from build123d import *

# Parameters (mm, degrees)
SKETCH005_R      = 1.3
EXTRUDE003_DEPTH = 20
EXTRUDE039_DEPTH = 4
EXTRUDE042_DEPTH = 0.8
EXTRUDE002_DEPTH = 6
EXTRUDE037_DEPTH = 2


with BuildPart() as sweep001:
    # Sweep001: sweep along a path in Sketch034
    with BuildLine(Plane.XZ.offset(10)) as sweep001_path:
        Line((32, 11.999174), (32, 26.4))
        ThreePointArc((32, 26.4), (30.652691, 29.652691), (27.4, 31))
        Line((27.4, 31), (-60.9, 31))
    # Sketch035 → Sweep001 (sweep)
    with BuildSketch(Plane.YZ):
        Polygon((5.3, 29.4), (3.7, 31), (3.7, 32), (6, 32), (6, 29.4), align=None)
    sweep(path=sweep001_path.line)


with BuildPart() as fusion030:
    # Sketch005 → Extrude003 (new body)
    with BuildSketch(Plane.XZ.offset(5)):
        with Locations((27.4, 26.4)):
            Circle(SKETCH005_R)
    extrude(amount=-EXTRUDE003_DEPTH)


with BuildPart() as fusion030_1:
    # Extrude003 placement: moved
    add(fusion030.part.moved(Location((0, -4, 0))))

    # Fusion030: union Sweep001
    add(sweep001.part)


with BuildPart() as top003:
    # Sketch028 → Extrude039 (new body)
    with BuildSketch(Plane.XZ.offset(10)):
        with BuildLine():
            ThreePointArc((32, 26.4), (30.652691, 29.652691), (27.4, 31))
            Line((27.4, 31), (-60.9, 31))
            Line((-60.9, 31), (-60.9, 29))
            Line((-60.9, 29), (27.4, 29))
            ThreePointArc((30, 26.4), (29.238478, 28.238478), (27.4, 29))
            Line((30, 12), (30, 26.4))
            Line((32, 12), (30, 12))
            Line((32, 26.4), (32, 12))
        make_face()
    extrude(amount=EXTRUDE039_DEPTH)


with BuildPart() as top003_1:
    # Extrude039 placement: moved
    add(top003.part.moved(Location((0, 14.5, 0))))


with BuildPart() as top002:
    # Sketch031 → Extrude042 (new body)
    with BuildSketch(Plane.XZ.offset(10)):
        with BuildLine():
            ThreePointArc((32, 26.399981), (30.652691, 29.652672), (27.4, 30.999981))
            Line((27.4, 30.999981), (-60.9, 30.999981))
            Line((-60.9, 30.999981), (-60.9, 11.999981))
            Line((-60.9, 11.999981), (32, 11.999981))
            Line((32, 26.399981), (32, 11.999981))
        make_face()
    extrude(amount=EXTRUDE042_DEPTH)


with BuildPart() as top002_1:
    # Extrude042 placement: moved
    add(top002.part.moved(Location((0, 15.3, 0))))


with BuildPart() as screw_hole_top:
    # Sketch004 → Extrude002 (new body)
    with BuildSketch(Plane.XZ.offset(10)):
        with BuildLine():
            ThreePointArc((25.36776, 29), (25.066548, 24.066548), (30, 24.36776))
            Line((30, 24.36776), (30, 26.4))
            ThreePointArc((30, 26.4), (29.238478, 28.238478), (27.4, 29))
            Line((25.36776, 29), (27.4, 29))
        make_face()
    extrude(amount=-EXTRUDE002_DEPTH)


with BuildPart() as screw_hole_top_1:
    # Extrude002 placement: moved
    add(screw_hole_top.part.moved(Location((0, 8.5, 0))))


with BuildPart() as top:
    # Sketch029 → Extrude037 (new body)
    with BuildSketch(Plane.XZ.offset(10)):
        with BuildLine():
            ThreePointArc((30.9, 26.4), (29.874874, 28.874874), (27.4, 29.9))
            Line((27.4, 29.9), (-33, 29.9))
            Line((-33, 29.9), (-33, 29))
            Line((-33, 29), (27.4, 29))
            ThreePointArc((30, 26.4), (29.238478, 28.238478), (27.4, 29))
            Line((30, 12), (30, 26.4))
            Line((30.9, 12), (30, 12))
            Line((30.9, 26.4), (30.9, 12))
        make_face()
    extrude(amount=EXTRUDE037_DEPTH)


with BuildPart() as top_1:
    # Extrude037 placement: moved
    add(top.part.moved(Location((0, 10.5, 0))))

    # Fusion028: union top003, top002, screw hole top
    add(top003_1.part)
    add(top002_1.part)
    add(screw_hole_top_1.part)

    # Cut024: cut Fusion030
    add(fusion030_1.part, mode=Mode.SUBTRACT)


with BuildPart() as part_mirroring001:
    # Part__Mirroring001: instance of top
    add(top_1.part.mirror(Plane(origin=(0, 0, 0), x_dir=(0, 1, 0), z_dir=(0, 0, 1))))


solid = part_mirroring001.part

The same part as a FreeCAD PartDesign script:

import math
import FreeCAD as App
import Part
import Sketcher
Q = App.Units.Quantity


def add_polygon(sketch, points):
    """Adds a closed chain of lines whose ends are joined by coincident constraints."""
    first, n = sketch.GeometryCount, len(points)
    for a, b in zip(points, points[1:] + points[:1]):
        sketch.addGeometry(Part.LineSegment(App.Vector(*a, 0), App.Vector(*b, 0)), False)
    for i in range(n):
        sketch.addConstraint(Sketcher.Constraint("Coincident", first + i, 2, first + (i + 1) % n, 1))

doc = App.newDocument("Part")
params = doc.addObject("Spreadsheet::Sheet", "Params")
for row, (alias, value) in enumerate([
    ("sketch1_height", "1 mm"),
    ("sketch1_width", "0.7 mm"),
    ("sketch1_width2", "2.3 mm"),
    ("sketch2_radius", "4.600001 mm"),
    ("sketch2_width", "88.3 mm"),
    ("sketch3_diameter", "2.6 mm"),
    ("pad1_length", "20 mm"),
    ("sketch4_radius", "4.600001 mm"),
    ("sketch4_radius2", "2.599999 mm"),
    ("sketch4_width", "88.3 mm"),
    ("sketch4_height", "14.4 mm"),
    ("pad2_length", "4 mm"),
    ("sketch5_radius", "4.600001 mm"),
    ("sketch5_height", "19 mm"),
    ("sketch5_width", "88.3 mm"),
    ("pad3_length", "0.8 mm"),
    ("sketch6_radius", "3.3 mm"),
    ("sketch6_radius2", "2.599999 mm"),
    ("pad4_length", "6 mm"),
    ("sketch7_radius", "3.499999 mm"),
    ("sketch7_radius2", "2.599999 mm"),
    ("sketch7_width", "60.4 mm"),
    ("sketch7_height", "14.4 mm"),
    ("pad5_length", "2 mm"),
], start=1):
    params.set(f"A{row}", alias)
    params.set(f"B{row}", "=" + value)
    params.setAlias(f"B{row}", alias)

body = doc.addObject("PartDesign::Body", "Body")

# Sketch on YZ plane
sketch1 = body.newObject("Sketcher::SketchObject", "Sketch")
sketch1.AttachmentSupport = (doc.getObject("YZ_Plane"), [""])
sketch1.MapMode = "FlatFace"
add_polygon(sketch1, [(3.7, 31), (5.3, 29.4), (6, 29.4), (6, 32), (3.7, 32)])  # lines 0-4
sketch1.addConstraint([
    Sketcher.Constraint("Horizontal", 1),
    Sketcher.Constraint("Vertical", 2),
    Sketcher.Constraint("Horizontal", 3),
    Sketcher.Constraint("Vertical", 4),
    Sketcher.Constraint("DistanceY", 4, 2, 4, 1, Q("1 mm")),
    Sketcher.Constraint("Angle", 0, Q("-45 deg")),
    Sketcher.Constraint("DistanceX", 1, 1, 1, 2, Q("0.7 mm")),
    Sketcher.Constraint("DistanceX", 3, 2, 3, 1, Q("2.3 mm")),
    Sketcher.Constraint("DistanceX", -1, 1, 1, 2, Q("6 mm")),
    Sketcher.Constraint("DistanceY", -1, 1, 2, 2, Q("32 mm")),
])
sketch1.setExpression("Constraints[9]", "Params.sketch1_height")
sketch1.setExpression("Constraints[11]", "Params.sketch1_width")
sketch1.setExpression("Constraints[12]", "Params.sketch1_width2")

# Sketch on XZ plane
sketch2 = body.newObject("Sketcher::SketchObject", "Sketch001")
sketch2.AttachmentSupport = (doc.getObject("XZ_Plane"), [""])
sketch2.MapMode = "FlatFace"
sketch2.AttachmentOffset = App.Placement(App.Vector(0, 0, 10), App.Rotation())
sketch2.addGeometry([
    Part.LineSegment(App.Vector(32, 12, 0), App.Vector(32, 26.4, 0)),
    Part.ArcOfCircle(Part.Circle(App.Vector(27.4, 26.4, 0), App.Vector(0, 0, 1), 4.6), math.radians(0), math.radians(90)),
    Part.LineSegment(App.Vector(27.4, 31, 0), App.Vector(-60.9, 31, 0)),
], False)
sketch2.addConstraint([
    Sketcher.Constraint("Tangent", 0, 2, 1, 1),
    Sketcher.Constraint("Tangent", 1, 2, 2, 1),
    Sketcher.Constraint("Vertical", 0),
    Sketcher.Constraint("Horizontal", 2),
    Sketcher.Constraint("Radius", 1, Q("4.600001 mm")),
    Sketcher.Constraint("DistanceX", 2, 2, 2, 1, Q("88.3 mm")),
    Sketcher.Constraint("DistanceX", -1, 1, 0, 1, Q("32 mm")),
    Sketcher.Constraint("DistanceY", -1, 1, 1, 2, Q("31 mm")),
    Sketcher.Constraint("DistanceY", 0, 1, 0, 2, Q("14.400826 mm")),
])
sketch2.setExpression("Constraints[4]", "Params.sketch2_radius")
sketch2.setExpression("Constraints[5]", "Params.sketch2_width")
doc.recompute()

additivepipe = body.newObject("PartDesign::AdditivePipe", "AdditivePipe")
additivepipe.Profile = sketch1
additivepipe.Spine = (sketch2, ["Edge1", "Edge2", "Edge3"])
body2 = doc.addObject("PartDesign::Body", "Body001")

# Sketch on XZ plane
sketch3 = body2.newObject("Sketcher::SketchObject", "Sketch002")
sketch3.AttachmentSupport = (doc.getObject("XZ_Plane001"), [""])
sketch3.MapMode = "FlatFace"
sketch3.AttachmentOffset = App.Placement(App.Vector(0, 0, 5), App.Rotation())
sketch3.addGeometry(Part.Circle(App.Vector(27.4, 26.4, 0), App.Vector(0, 0, 1), 1.3), False)
sketch3.addConstraint([
    Sketcher.Constraint("Diameter", 0, Q("2.6 mm")),
    Sketcher.Constraint("DistanceX", -1, 1, 0, 3, Q("27.4 mm")),
    Sketcher.Constraint("DistanceY", -1, 1, 0, 3, Q("26.4 mm")),
])
sketch3.setExpression("Constraints[0]", "Params.sketch3_diameter")
pad1 = body2.newObject("PartDesign::Pad", "Pad")
pad1.Profile = sketch3
pad1.setExpression("Length", "Params.pad1_length")
pad1.Reversed = True
body3 = doc.addObject("PartDesign::Body", "Body002")
body3.AllowCompound = True
doc.recompute()

body2.Placement = App.Placement(App.Vector(0, -4, 0), App.Rotation(App.Vector(0, 0, 1), 0))
boolean = body3.newObject("PartDesign::Boolean", "Boolean")
boolean.Type = "Fuse"
boolean.addObjects([body2])
doc.recompute()

boolean2 = body3.newObject("PartDesign::Boolean", "Boolean001")
boolean2.Type = "Fuse"
boolean2.addObjects([body])
body4 = doc.addObject("PartDesign::Body", "Body003")

# Sketch on XZ plane
sketch4 = body4.newObject("Sketcher::SketchObject", "Sketch003")
sketch4.AttachmentSupport = (doc.getObject("XZ_Plane003"), [""])
sketch4.MapMode = "FlatFace"
sketch4.AttachmentOffset = App.Placement(App.Vector(0, 0, 10), App.Rotation())
sketch4.addGeometry([
    Part.ArcOfCircle(Part.Circle(App.Vector(27.4, 26.4, 0), App.Vector(0, 0, 1), 4.6), math.radians(0), math.radians(90)),  # 0
    Part.LineSegment(App.Vector(27.4, 31, 0), App.Vector(-60.9, 31, 0)),  # 1
    Part.LineSegment(App.Vector(-60.9, 31, 0), App.Vector(-60.9, 29, 0)),  # 2
    Part.LineSegment(App.Vector(-60.9, 29, 0), App.Vector(27.4, 29, 0)),  # 3
    Part.ArcOfCircle(Part.Circle(App.Vector(27.4, 26.4, 0), App.Vector(0, 0, 1), 2.6), math.radians(0), math.radians(90)),  # 4
    Part.LineSegment(App.Vector(30, 26.4, 0), App.Vector(30, 12, 0)),  # 5
    Part.LineSegment(App.Vector(30, 12, 0), App.Vector(32, 12, 0)),  # 6
    Part.LineSegment(App.Vector(32, 12, 0), App.Vector(32, 26.4, 0)),  # 7
], False)
sketch4.addConstraint([
    Sketcher.Constraint("Tangent", 0, 2, 1, 1),
    Sketcher.Constraint("Coincident", 1, 2, 2, 1),
    Sketcher.Constraint("Coincident", 2, 2, 3, 1),
    Sketcher.Constraint("Tangent", 3, 2, 4, 2),
    Sketcher.Constraint("Tangent", 4, 1, 5, 1),
    Sketcher.Constraint("Coincident", 5, 2, 6, 1),
    Sketcher.Constraint("Coincident", 6, 2, 7, 1),
    Sketcher.Constraint("Tangent", 7, 2, 0, 1),
    Sketcher.Constraint("Horizontal", 1),
    Sketcher.Constraint("Vertical", 2),
    Sketcher.Constraint("Horizontal", 3),
    Sketcher.Constraint("Vertical", 5),
    Sketcher.Constraint("Horizontal", 6),
    Sketcher.Constraint("Vertical", 7),
    Sketcher.Constraint("Coincident", 4, 3, 0, 3),
    Sketcher.Constraint("Radius", 0, Q("4.600001 mm")),
    Sketcher.Constraint("Radius", 4, Q("2.599999 mm")),
    Sketcher.Constraint("DistanceX", 1, 2, 1, 1, Q("88.3 mm")),
    Sketcher.Constraint("DistanceY", 5, 2, 5, 1, Q("14.4 mm")),
    Sketcher.Constraint("DistanceY", -1, 1, 0, 2, Q("31 mm")),
    Sketcher.Constraint("DistanceX", -1, 1, 4, 1, Q("30 mm")),
])
sketch4.setExpression("Constraints[15]", "Params.sketch4_radius")
sketch4.setExpression("Constraints[16]", "Params.sketch4_radius2")
sketch4.setExpression("Constraints[17]", "Params.sketch4_width")
sketch4.setExpression("Constraints[18]", "Params.sketch4_height")
pad2 = body4.newObject("PartDesign::Pad", "Pad001")
pad2.Profile = sketch4
pad2.setExpression("Length", "Params.pad2_length")
body5 = doc.addObject("PartDesign::Body", "Body004")
doc.recompute()

body4.Placement = App.Placement(App.Vector(0, 14.5, 0), App.Rotation(App.Vector(0, 0, 1), 0))
boolean3 = body5.newObject("PartDesign::Boolean", "Boolean002")
boolean3.Type = "Fuse"
boolean3.addObjects([body4])
body6 = doc.addObject("PartDesign::Body", "Body005")

# Sketch on XZ plane
sketch5 = body6.newObject("Sketcher::SketchObject", "Sketch004")
sketch5.AttachmentSupport = (doc.getObject("XZ_Plane005"), [""])
sketch5.MapMode = "FlatFace"
sketch5.AttachmentOffset = App.Placement(App.Vector(0, 0, 10), App.Rotation())
sketch5.addGeometry([
    Part.ArcOfCircle(Part.Circle(App.Vector(27.4, 26.4, 0), App.Vector(0, 0, 1), 4.6), math.radians(0), math.radians(90)),  # 0
    Part.LineSegment(App.Vector(27.4, 31, 0), App.Vector(-60.9, 31, 0)),  # 1
    Part.LineSegment(App.Vector(-60.9, 31, 0), App.Vector(-60.9, 12, 0)),  # 2
    Part.LineSegment(App.Vector(-60.9, 12, 0), App.Vector(32, 12, 0)),  # 3
    Part.LineSegment(App.Vector(32, 12, 0), App.Vector(32, 26.4, 0)),  # 4
], False)
sketch5.addConstraint([
    Sketcher.Constraint("Tangent", 0, 2, 1, 1),
    Sketcher.Constraint("Coincident", 1, 2, 2, 1),
    Sketcher.Constraint("Coincident", 2, 2, 3, 1),
    Sketcher.Constraint("Coincident", 3, 2, 4, 1),
    Sketcher.Constraint("Tangent", 4, 2, 0, 1),
    Sketcher.Constraint("Horizontal", 1),
    Sketcher.Constraint("Vertical", 2),
    Sketcher.Constraint("Horizontal", 3),
    Sketcher.Constraint("Vertical", 4),
    Sketcher.Constraint("Radius", 0, Q("4.600001 mm")),
    Sketcher.Constraint("DistanceY", 2, 2, 2, 1, Q("19 mm")),
    Sketcher.Constraint("DistanceX", 1, 2, 1, 1, Q("88.3 mm")),
    Sketcher.Constraint("DistanceX", -1, 1, 3, 2, Q("32 mm")),
    Sketcher.Constraint("DistanceY", -1, 1, 0, 3, Q("26.39998 mm")),
])
sketch5.setExpression("Constraints[9]", "Params.sketch5_radius")
sketch5.setExpression("Constraints[10]", "Params.sketch5_height")
sketch5.setExpression("Constraints[11]", "Params.sketch5_width")
pad3 = body6.newObject("PartDesign::Pad", "Pad002")
pad3.Profile = sketch5
pad3.setExpression("Length", "Params.pad3_length")
body7 = doc.addObject("PartDesign::Body", "Body006")
doc.recompute()

body6.Placement = App.Placement(App.Vector(0, 15.3, 0), App.Rotation(App.Vector(0, 0, 1), 0))
boolean4 = body7.newObject("PartDesign::Boolean", "Boolean003")
boolean4.Type = "Fuse"
boolean4.addObjects([body6])
body8 = doc.addObject("PartDesign::Body", "Body007")

# Sketch on XZ plane
sketch6 = body8.newObject("Sketcher::SketchObject", "Sketch005")
sketch6.AttachmentSupport = (doc.getObject("XZ_Plane007"), [""])
sketch6.MapMode = "FlatFace"
sketch6.AttachmentOffset = App.Placement(App.Vector(0, 0, 10), App.Rotation())
sketch6.addGeometry([
    Part.ArcOfCircle(Part.Circle(App.Vector(27.4, 26.4, 0), App.Vector(0, 0, 1), 3.3), math.radians(128), math.radians(322)),
    Part.LineSegment(App.Vector(30, 24.4, 0), App.Vector(30, 26.4, 0)),
    Part.ArcOfCircle(Part.Circle(App.Vector(27.4, 26.4, 0), App.Vector(0, 0, 1), 2.6), math.radians(0), math.radians(90)),
    Part.LineSegment(App.Vector(27.4, 29, 0), App.Vector(25.4, 29, 0)),
], False)
sketch6.addConstraint([
    Sketcher.Constraint("Coincident", 0, 2, 1, 1),
    Sketcher.Constraint("Tangent", 1, 2, 2, 1),
    Sketcher.Constraint("Tangent", 2, 2, 3, 1),
    Sketcher.Constraint("Coincident", 3, 2, 0, 1),
    Sketcher.Constraint("Vertical", 1),
    Sketcher.Constraint("Horizontal", 3),
    Sketcher.Constraint("Coincident", 2, 3, 0, 3),
    Sketcher.Constraint("Radius", 0, Q("3.3 mm")),
    Sketcher.Constraint("Radius", 2, Q("2.599999 mm")),
    Sketcher.Constraint("DistanceX", -1, 1, 0, 2, Q("30 mm")),
    Sketcher.Constraint("DistanceY", -1, 1, 2, 2, Q("29 mm")),
])
sketch6.setExpression("Constraints[7]", "Params.sketch6_radius")
sketch6.setExpression("Constraints[8]", "Params.sketch6_radius2")
pad4 = body8.newObject("PartDesign::Pad", "Pad003")
pad4.Profile = sketch6
pad4.setExpression("Length", "Params.pad4_length")
pad4.Reversed = True
body9 = doc.addObject("PartDesign::Body", "Body008")
doc.recompute()

body8.Placement = App.Placement(App.Vector(0, 8.5, 0), App.Rotation(App.Vector(0, 0, 1), 0))
boolean5 = body9.newObject("PartDesign::Boolean", "Boolean004")
boolean5.Type = "Fuse"
boolean5.addObjects([body8])
body10 = doc.addObject("PartDesign::Body", "Body009")

# Sketch on XZ plane
sketch7 = body10.newObject("Sketcher::SketchObject", "Sketch006")
sketch7.AttachmentSupport = (doc.getObject("XZ_Plane009"), [""])
sketch7.MapMode = "FlatFace"
sketch7.AttachmentOffset = App.Placement(App.Vector(0, 0, 10), App.Rotation())
sketch7.addGeometry([
    Part.ArcOfCircle(Part.Circle(App.Vector(27.4, 26.4, 0), App.Vector(0, 0, 1), 3.5), math.radians(0), math.radians(90)),  # 0
    Part.LineSegment(App.Vector(27.4, 29.9, 0), App.Vector(-33, 29.9, 0)),  # 1
    Part.LineSegment(App.Vector(-33, 29.9, 0), App.Vector(-33, 29, 0)),  # 2
    Part.LineSegment(App.Vector(-33, 29, 0), App.Vector(27.4, 29, 0)),  # 3
    Part.ArcOfCircle(Part.Circle(App.Vector(27.4, 26.4, 0), App.Vector(0, 0, 1), 2.6), math.radians(0), math.radians(90)),  # 4
    Part.LineSegment(App.Vector(30, 26.4, 0), App.Vector(30, 12, 0)),  # 5
    Part.LineSegment(App.Vector(30, 12, 0), App.Vector(30.9, 12, 0)),  # 6
    Part.LineSegment(App.Vector(30.9, 12, 0), App.Vector(30.9, 26.4, 0)),  # 7
], False)
sketch7.addConstraint([
    Sketcher.Constraint("Tangent", 0, 2, 1, 1),
    Sketcher.Constraint("Coincident", 1, 2, 2, 1),
    Sketcher.Constraint("Coincident", 2, 2, 3, 1),
    Sketcher.Constraint("Tangent", 3, 2, 4, 2),
    Sketcher.Constraint("Tangent", 4, 1, 5, 1),
    Sketcher.Constraint("Coincident", 5, 2, 6, 1),
    Sketcher.Constraint("Coincident", 6, 2, 7, 1),
    Sketcher.Constraint("Tangent", 7, 2, 0, 1),
    Sketcher.Constraint("Horizontal", 1),
    Sketcher.Constraint("Vertical", 2),
    Sketcher.Constraint("Horizontal", 3),
    Sketcher.Constraint("Vertical", 5),
    Sketcher.Constraint("Horizontal", 6),
    Sketcher.Constraint("Vertical", 7),
    Sketcher.Constraint("Coincident", 4, 3, 0, 3),
    Sketcher.Constraint("Radius", 0, Q("3.499999 mm")),
    Sketcher.Constraint("Radius", 4, Q("2.599999 mm")),
    Sketcher.Constraint("DistanceX", 1, 2, 1, 1, Q("60.4 mm")),
    Sketcher.Constraint("DistanceY", 5, 2, 5, 1, Q("14.4 mm")),
    Sketcher.Constraint("DistanceX", 1, 2, -1, 1, Q("33 mm")),
    Sketcher.Constraint("DistanceY", -1, 1, 2, 2, Q("29 mm")),
])
sketch7.setExpression("Constraints[15]", "Params.sketch7_radius")
sketch7.setExpression("Constraints[16]", "Params.sketch7_radius2")
sketch7.setExpression("Constraints[17]", "Params.sketch7_width")
sketch7.setExpression("Constraints[18]", "Params.sketch7_height")
pad5 = body10.newObject("PartDesign::Pad", "Pad004")
pad5.Profile = sketch7
pad5.setExpression("Length", "Params.pad5_length")
body11 = doc.addObject("PartDesign::Body", "Body010")
doc.recompute()

body10.Placement = App.Placement(App.Vector(0, 10.5, 0), App.Rotation(App.Vector(0, 0, 1), 0))
boolean6 = body11.newObject("PartDesign::Boolean", "Boolean005")
boolean6.Type = "Fuse"
boolean6.addObjects([body10])
doc.recompute()

boolean7 = body11.newObject("PartDesign::Boolean", "Boolean006")
boolean7.Type = "Fuse"
boolean7.addObjects([body5])
doc.recompute()

boolean8 = body11.newObject("PartDesign::Boolean", "Boolean007")
boolean8.Type = "Fuse"
boolean8.addObjects([body7])
doc.recompute()

boolean9 = body11.newObject("PartDesign::Boolean", "Boolean008")
boolean9.Type = "Fuse"
boolean9.addObjects([body9])
doc.recompute()

boolean10 = body11.newObject("PartDesign::Boolean", "Boolean009")
boolean10.Type = "Cut"
boolean10.addObjects([body3])
body12 = doc.addObject("PartDesign::Body", "Body011")
doc.recompute()

mirroring = doc.addObject("Part::Mirroring", "Mirroring")
mirroring.Source = body11
mirroring.Base = App.Vector(0, 0, 0)
mirroring.Normal = App.Vector(0, 0, 1)
body12.BaseFeature = mirroring
doc.recompute()
body11.Visibility = False
mirroring.Visibility = False

doc.recompute()
